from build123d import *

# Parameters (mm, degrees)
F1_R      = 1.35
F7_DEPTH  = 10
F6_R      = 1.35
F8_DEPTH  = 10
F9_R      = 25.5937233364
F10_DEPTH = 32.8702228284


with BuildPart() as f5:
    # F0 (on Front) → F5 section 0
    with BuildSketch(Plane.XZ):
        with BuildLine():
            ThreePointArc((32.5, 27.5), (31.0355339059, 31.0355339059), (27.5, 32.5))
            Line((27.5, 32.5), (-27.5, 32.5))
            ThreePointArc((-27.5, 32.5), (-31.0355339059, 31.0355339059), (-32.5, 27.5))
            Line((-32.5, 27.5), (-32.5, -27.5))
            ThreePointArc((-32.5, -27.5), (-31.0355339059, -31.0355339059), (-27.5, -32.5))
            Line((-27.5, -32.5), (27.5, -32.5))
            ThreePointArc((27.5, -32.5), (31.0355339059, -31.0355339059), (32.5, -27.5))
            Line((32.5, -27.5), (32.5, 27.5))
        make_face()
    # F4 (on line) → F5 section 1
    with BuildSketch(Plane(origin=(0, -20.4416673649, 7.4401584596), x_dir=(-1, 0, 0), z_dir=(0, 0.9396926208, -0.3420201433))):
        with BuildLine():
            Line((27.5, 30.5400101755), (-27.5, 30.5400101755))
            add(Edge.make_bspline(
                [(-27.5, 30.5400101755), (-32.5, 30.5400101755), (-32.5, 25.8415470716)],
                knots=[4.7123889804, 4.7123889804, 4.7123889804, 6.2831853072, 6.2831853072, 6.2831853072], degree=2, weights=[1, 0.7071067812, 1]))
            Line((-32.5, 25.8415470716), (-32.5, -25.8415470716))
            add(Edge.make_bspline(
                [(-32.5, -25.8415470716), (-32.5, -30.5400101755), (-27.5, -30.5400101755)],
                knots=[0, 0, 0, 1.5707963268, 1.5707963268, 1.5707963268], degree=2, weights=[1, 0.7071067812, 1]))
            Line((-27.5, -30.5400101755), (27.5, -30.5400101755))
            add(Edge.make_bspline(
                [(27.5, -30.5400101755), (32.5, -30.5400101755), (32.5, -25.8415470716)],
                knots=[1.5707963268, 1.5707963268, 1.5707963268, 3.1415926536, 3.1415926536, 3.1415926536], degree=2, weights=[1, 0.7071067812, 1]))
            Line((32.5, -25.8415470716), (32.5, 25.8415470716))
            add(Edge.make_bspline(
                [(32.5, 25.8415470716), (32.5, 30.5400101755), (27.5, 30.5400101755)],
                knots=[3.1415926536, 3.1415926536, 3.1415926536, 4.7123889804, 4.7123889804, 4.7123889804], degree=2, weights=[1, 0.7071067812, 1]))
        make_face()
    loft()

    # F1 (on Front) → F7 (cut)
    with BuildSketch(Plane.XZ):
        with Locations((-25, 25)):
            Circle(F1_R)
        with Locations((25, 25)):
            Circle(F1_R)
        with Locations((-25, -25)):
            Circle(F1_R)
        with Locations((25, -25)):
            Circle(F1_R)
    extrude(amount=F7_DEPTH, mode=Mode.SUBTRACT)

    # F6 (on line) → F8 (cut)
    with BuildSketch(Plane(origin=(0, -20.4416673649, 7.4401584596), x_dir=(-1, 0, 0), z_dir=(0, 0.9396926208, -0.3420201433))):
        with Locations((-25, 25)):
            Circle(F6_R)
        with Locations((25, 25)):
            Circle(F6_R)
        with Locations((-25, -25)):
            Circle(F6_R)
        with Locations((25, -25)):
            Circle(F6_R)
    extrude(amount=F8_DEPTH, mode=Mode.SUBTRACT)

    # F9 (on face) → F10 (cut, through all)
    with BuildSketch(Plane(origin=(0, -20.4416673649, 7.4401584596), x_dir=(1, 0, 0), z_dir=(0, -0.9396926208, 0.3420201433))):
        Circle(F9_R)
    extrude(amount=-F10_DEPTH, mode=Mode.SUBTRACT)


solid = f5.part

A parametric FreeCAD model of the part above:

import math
import FreeCAD as App
import Part
import Sketcher

doc = App.newDocument("Part")
body = doc.addObject("PartDesign::Body", "Body")

sketch1 = body.newObject("Sketcher::SketchObject", "Sketch")
sketch1.AttachmentSupport = (doc.getObject("XZ_Plane"), [""])
sketch1.MapMode = "FlatFace"
sketch1.addGeometry(Part.ArcOfCircle(Part.Circle(App.Vector(27.5, 27.5, 0), App.Vector(0, 0, 1), 5), math.radians(0), math.radians(90)), False)
sketch1.addGeometry(Part.LineSegment(App.Vector(27.5, 32.5, 0), App.Vector(-27.5, 32.5, 0)), False)
sketch1.addGeometry(Part.ArcOfCircle(Part.Circle(App.Vector(-27.5, 27.5, 0), App.Vector(0, 0, 1), 5), math.radians(90), math.radians(180)), False)
sketch1.addGeometry(Part.LineSegment(App.Vector(-32.5, 27.5, 0), App.Vector(-32.5, -27.5, 0)), False)
sketch1.addGeometry(Part.ArcOfCircle(Part.Circle(App.Vector(-27.5, -27.5, 0), App.Vector(0, 0, 1), 5), math.radians(180), math.radians(270)), False)
sketch1.addGeometry(Part.LineSegment(App.Vector(-27.5, -32.5, 0), App.Vector(27.5, -32.5, 0)), False)
sketch1.addGeometry(Part.ArcOfCircle(Part.Circle(App.Vector(27.5, -27.5, 0), App.Vector(0, 0, 1), 5), math.radians(-90), math.radians(0)), False)
sketch1.addGeometry(Part.LineSegment(App.Vector(32.5, -27.5, 0), App.Vector(32.5, 27.5, 0)), False)
sketch1.addConstraint(Sketcher.Constraint("Tangent", 0, 2, 1, 1))
sketch1.addConstraint(Sketcher.Constraint("Tangent", 1, 2, 2, 1))
sketch1.addConstraint(Sketcher.Constraint("Tangent", 2, 2, 3, 1))
sketch1.addConstraint(Sketcher.Constraint("Tangent", 3, 2, 4, 1))
sketch1.addConstraint(Sketcher.Constraint("Tangent", 4, 2, 5, 1))
sketch1.addConstraint(Sketcher.Constraint("Tangent", 5, 2, 6, 1))
sketch1.addConstraint(Sketcher.Constraint("Tangent", 6, 2, 7, 1))
sketch1.addConstraint(Sketcher.Constraint("Tangent", 7, 2, 0, 1))
sketch1.addConstraint(Sketcher.Constraint("Horizontal", 1))
sketch1.addConstraint(Sketcher.Constraint("Vertical", 3))
sketch1.addConstraint(Sketcher.Constraint("Horizontal", 5))
sketch1.addConstraint(Sketcher.Constraint("Vertical", 7))
sketch1.addConstraint(Sketcher.Constraint("Equal", 0, 2))
sketch1.addConstraint(Sketcher.Constraint("Equal", 2, 4))
sketch1.addConstraint(Sketcher.Constraint("Equal", 4, 6))
sketch1.addConstraint(Sketcher.Constraint("Symmetric", 0, 3, 4, 3, -1, 1))
sketch1.addConstraint(Sketcher.Constraint("Equal", 5, 3))
sketch1.addConstraint(Sketcher.Constraint("Radius", 0, 5.0))
sketch1.addConstraint(Sketcher.Constraint("DistanceX", 1, 2, 1, 1, 55.0))

sketch2 = body.newObject("Sketcher::SketchObject", "Sketch001")
sketch2.Placement = App.Placement(App.Vector(0, -20.441667, 7.440158), App.Rotation(App.Vector(-1, 0, 0), App.Vector(0, 0.342020143, 0.939692621), App.Vector(0, 0.939692621, -0.342020143), "ZXY"))
sketch2.addGeometry(Part.LineSegment(App.Vector(27.5, 30.54001, 0), App.Vector(-27.5, 30.54001, 0)), False)
sketch2.addGeometry(Part.BSplineCurve([App.Vector(-27.5, 30.54001, 0), App.Vector(-32.5, 30.54001, 0), App.Vector(-32.5, 25.841547, 0)], [3, 3], [4.71238898, 6.283185307], False, 2, [1, 0.707106781, 1], False), False)
sketch2.addGeometry(Part.LineSegment(App.Vector(-32.5, 25.841547, 0), App.Vector(-32.5, -25.841547, 0)), False)
sketch2.addGeometry(Part.BSplineCurve([App.Vector(-32.5, -25.841547, 0), App.Vector(-32.5, -30.54001, 0), App.Vector(-27.5, -30.54001, 0)], [3, 3], [0, 1.570796327], False, 2, [1, 0.707106781, 1], False), False)
sketch2.addGeometry(Part.LineSegment(App.Vector(-27.5, -30.54001, 0), App.Vector(27.5, -30.54001, 0)), False)
sketch2.addGeometry(Part.BSplineCurve([App.Vector(27.5, -30.54001, 0), App.Vector(32.5, -30.54001, 0), App.Vector(32.5, -25.841547, 0)], [3, 3], [1.570796327, 3.141592654], False, 2, [1, 0.707106781, 1], False), False)
sketch2.addGeometry(Part.LineSegment(App.Vector(32.5, -25.841547, 0), App.Vector(32.5, 25.841547, 0)), False)
sketch2.addGeometry(Part.BSplineCurve([App.Vector(32.5, 25.841547, 0), App.Vector(32.5, 30.54001, 0), App.Vector(27.5, 30.54001, 0)], [3, 3], [3.141592654, 4.71238898], False, 2, [1, 0.707106781, 1], False), False)
sketch2.addConstraint(Sketcher.Constraint("Block", 1))
sketch2.addConstraint(Sketcher.Constraint("Block", 3))
sketch2.addConstraint(Sketcher.Constraint("Block", 5))
sketch2.addConstraint(Sketcher.Constraint("Block", 7))
sketch2.addConstraint(Sketcher.Constraint("Coincident", 0, 2, 1, 1))
sketch2.addConstraint(Sketcher.Constraint("Coincident", 1, 2, 2, 1))
sketch2.addConstraint(Sketcher.Constraint("Coincident", 2, 2, 3, 1))
sketch2.addConstraint(Sketcher.Constraint("Coincident", 3, 2, 4, 1))
sketch2.addConstraint(Sketcher.Constraint("Coincident", 4, 2, 5, 1))
sketch2.addConstraint(Sketcher.Constraint("Coincident", 5, 2, 6, 1))
sketch2.addConstraint(Sketcher.Constraint("Coincident", 6, 2, 7, 1))
sketch2.addConstraint(Sketcher.Constraint("Coincident", 7, 2, 0, 1))

additiveloft = body.newObject("PartDesign::AdditiveLoft", "AdditiveLoft")
additiveloft.Profile = sketch1
additiveloft.Sections = [sketch2]

sketch3 = body.newObject("Sketcher::SketchObject", "Sketch002")
sketch3.AttachmentSupport = (doc.getObject("XZ_Plane"), [""])
sketch3.MapMode = "FlatFace"
sketch3.addGeometry(Part.Circle(App.Vector(-25, 25, 0), App.Vector(0, 0, 1), 1.35), False)
sketch3.addGeometry(Part.Circle(App.Vector(25, 25, 0), App.Vector(0, 0, 1), 1.35), False)
sketch3.addGeometry(Part.Circle(App.Vector(-25, -25, 0), App.Vector(0, 0, 1), 1.35), False)
sketch3.addGeometry(Part.Circle(App.Vector(25, -25, 0), App.Vector(0, 0, 1), 1.35), False)
sketch3.addConstraint(Sketcher.Constraint("Equal", 0, 1))
sketch3.addConstraint(Sketcher.Constraint("Equal", 1, 2))
sketch3.addConstraint(Sketcher.Constraint("Equal", 2, 3))
sketch3.addConstraint(Sketcher.Constraint("Symmetric", 1, 3, 2, 3, -1, 1))
sketch3.addConstraint(Sketcher.Constraint("Symmetric", 0, 3, 3, 3, -1, 1))
sketch3.addConstraint(Sketcher.Constraint("Symmetric", 0, 3, 1, 3, -2))
sketch3.addConstraint(Sketcher.Constraint("Diameter", 0, 2.7))
sketch3.addConstraint(Sketcher.Constraint("DistanceX", 0, 3, -1, 1, 25.0))
sketch3.addConstraint(Sketcher.Constraint("DistanceY", -1, 1, 0, 3, 25.0))
pocket1 = body.newObject("PartDesign::Pocket", "Pocket")
pocket1.Profile = sketch3
pocket1.Length = 10
pocket1.Reversed = True

sketch4 = body.newObject("Sketcher::SketchObject", "Sketch003")
sketch4.Placement = App.Placement(App.Vector(0, -20.441667, 7.440158), App.Rotation(App.Vector(-1, 0, 0), App.Vector(0, 0.342020143, 0.939692621), App.Vector(0, 0.939692621, -0.342020143), "ZXY"))
sketch4.addGeometry(Part.Circle(App.Vector(-25, 25, 0), App.Vector(0, 0, 1), 1.35), False)
sketch4.addGeometry(Part.Circle(App.Vector(25, 25, 0), App.Vector(0, 0, 1), 1.35), False)
sketch4.addGeometry(Part.Circle(App.Vector(-25, -25, 0), App.Vector(0, 0, 1), 1.35), False)
sketch4.addGeometry(Part.Circle(App.Vector(25, -25, 0), App.Vector(0, 0, 1), 1.35), False)
sketch4.addConstraint(Sketcher.Constraint("Equal", 0, 1))
sketch4.addConstraint(Sketcher.Constraint("Equal", 1, 2))
sketch4.addConstraint(Sketcher.Constraint("Equal", 2, 3))
sketch4.addConstraint(Sketcher.Constraint("Symmetric", 1, 3, 2, 3, -1, 1))
sketch4.addConstraint(Sketcher.Constraint("Symmetric", 0, 3, 3, 3, -1, 1))
sketch4.addConstraint(Sketcher.Constraint("Symmetric", 0, 3, 1, 3, -2))
sketch4.addConstraint(Sketcher.Constraint("Diameter", 0, 2.7))
sketch4.addConstraint(Sketcher.Constraint("DistanceX", 0, 3, -1, 1, 25.0))
sketch4.addConstraint(Sketcher.Constraint("DistanceY", -1, 1, 0, 3, 25.0))
pocket2 = body.newObject("PartDesign::Pocket", "Pocket001")
pocket2.Profile = sketch4
pocket2.Length = 10
pocket2.Reversed = True

sketch5 = body.newObject("Sketcher::SketchObject", "Sketch004")
sketch5.Placement = App.Placement(App.Vector(0, -20.441667, 7.440158), App.Rotation(App.Vector(1, 0, 0), App.Vector(0, 0.342020143, 0.939692621), App.Vector(0, -0.939692621, 0.342020143), "ZXY"))
sketch5.addGeometry(Part.Circle(App.Vector(0, 0, 0), App.Vector(0, 0, 1), 25.593723), False)
sketch5.addConstraint(Sketcher.Constraint("Coincident", 0, 3, -1, 1))
sketch5.addConstraint(Sketcher.Constraint("Diameter", 0, 51.187447))
pocket3 = body.newObject("PartDesign::Pocket", "Pocket002")
pocket3.Profile = sketch5
pocket3.Type = "ThroughAll"

doc.recompute()
